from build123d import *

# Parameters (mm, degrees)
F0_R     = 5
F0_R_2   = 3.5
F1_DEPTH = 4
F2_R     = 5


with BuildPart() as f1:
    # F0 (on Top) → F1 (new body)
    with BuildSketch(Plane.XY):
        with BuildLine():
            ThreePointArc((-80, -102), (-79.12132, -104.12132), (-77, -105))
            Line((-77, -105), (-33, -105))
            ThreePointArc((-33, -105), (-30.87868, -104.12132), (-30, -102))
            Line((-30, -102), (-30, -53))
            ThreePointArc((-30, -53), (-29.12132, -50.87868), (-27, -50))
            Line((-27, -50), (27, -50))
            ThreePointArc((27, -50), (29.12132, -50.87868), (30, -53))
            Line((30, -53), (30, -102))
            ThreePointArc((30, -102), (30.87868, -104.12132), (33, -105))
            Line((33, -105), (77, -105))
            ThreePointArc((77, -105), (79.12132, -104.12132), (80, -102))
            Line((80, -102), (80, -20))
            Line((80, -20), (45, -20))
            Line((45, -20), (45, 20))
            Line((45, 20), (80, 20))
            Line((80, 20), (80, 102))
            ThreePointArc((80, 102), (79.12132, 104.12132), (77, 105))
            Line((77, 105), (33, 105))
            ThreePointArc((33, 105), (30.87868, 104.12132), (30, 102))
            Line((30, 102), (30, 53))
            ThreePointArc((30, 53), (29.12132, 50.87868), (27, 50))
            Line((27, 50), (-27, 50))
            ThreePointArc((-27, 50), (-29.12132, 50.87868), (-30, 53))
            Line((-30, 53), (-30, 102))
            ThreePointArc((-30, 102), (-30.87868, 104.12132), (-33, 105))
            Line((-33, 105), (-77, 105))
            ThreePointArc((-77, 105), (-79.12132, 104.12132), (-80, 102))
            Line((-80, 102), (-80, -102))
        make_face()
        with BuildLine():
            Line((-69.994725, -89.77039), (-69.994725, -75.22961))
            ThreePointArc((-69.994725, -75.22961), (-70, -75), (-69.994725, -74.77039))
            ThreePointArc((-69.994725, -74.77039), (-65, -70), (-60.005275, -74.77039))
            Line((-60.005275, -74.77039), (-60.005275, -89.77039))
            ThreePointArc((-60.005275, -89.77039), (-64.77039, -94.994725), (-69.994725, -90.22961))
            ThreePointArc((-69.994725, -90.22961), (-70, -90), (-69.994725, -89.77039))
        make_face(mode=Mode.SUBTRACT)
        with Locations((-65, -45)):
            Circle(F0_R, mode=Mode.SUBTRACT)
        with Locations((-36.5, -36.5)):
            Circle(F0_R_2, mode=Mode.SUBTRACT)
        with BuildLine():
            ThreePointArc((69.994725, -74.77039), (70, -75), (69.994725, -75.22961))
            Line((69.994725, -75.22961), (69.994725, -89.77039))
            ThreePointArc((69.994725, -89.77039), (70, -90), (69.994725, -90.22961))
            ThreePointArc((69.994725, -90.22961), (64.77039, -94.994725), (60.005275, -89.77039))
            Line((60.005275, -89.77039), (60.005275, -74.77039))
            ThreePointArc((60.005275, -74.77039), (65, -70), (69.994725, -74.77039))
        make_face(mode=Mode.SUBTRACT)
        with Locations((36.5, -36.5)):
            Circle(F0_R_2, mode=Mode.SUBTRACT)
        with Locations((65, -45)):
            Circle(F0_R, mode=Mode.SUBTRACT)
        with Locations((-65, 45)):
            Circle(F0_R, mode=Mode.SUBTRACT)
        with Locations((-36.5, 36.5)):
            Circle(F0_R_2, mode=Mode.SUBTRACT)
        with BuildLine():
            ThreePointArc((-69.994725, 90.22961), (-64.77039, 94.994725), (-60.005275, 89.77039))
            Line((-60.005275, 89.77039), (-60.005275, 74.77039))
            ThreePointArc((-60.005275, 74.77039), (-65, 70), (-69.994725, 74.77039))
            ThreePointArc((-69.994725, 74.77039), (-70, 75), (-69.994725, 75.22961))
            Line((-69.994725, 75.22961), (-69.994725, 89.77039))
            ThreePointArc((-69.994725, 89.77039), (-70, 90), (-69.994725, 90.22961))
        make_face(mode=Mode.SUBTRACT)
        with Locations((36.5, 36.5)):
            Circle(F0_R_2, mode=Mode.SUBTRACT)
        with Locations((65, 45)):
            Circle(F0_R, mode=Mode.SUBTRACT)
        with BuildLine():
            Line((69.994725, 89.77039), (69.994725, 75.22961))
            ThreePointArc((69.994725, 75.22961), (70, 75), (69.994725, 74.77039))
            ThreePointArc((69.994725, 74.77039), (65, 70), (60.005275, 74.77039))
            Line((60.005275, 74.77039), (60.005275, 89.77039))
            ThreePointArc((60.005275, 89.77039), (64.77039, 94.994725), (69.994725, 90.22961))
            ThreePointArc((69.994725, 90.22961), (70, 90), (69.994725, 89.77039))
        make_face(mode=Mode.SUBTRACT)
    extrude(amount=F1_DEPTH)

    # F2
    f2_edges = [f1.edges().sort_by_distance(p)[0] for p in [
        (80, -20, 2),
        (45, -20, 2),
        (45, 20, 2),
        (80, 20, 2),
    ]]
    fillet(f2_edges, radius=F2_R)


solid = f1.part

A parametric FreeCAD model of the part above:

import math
import FreeCAD as App
import Part
import Sketcher

V = App.Vector
Q = App.Units.Quantity


def edges_at(feature, points):
    """Names of the edges that pass closest to the given points."""
    edges = feature.Shape.Edges
    near = lambda p: min(range(len(edges)), key=lambda i: edges[i].distToShape(Part.Vertex(*p))[0])
    return sorted({f"Edge{near(p) + 1}" for p in points})

doc = App.newDocument("Part")
params = doc.addObject("Spreadsheet::Sheet", "Params")
for row, (alias, value) in enumerate([
    ("sketch1_diameter", "10 mm"),
    ("sketch1_diameter2", "7 mm"),
    ("sketch1_diameter3", "7 mm"),
    ("sketch1_diameter4", "10 mm"),
    ("sketch1_diameter5", "10 mm"),
    ("pad1_length", "4 mm"),
    ("fillet_radius", "5 mm"),
], start=1):
    params.set(f"A{row}", alias)
    params.set(f"B{row}", "=" + value)
    params.setAlias(f"B{row}", alias)

body = doc.addObject("PartDesign::Body", "Body")

sketch1 = doc.addObject("Sketcher::SketchObject", "Sketch")
body.addObject(sketch1)
sketch1.AttachmentSupport = (doc.XY_Plane, [""])
sketch1.MapMode = "FlatFace"
sketch1.addGeometry([
    Part.ArcOfCircle(Part.Circle(V(-76.999999, -101.999999, 0), V(0, 0, 1), 3.000001), math.radians(-179.999978), math.radians(-90.000022)),
    Part.LineSegment(V(-77, -105, 0), V(-33, -105, 0)),
    Part.ArcOfCircle(Part.Circle(V(-33.000001, -101.999999, 0), V(0, 0, 1), 3.000001), math.radians(-89.999978), math.radians(-0.000022)),
    Part.LineSegment(V(-30, -102, 0), V(-30, -53, 0)),
    Part.ArcOfCircle(Part.Circle(V(-26.999999, -53.000001, 0), V(0, 0, 1), 3.000001), math.radians(90.000022), math.radians(179.999978)),
    Part.LineSegment(V(-27, -50, 0), V(27, -50, 0)),
    Part.ArcOfCircle(Part.Circle(V(26.999999, -53.000001, 0), V(0, 0, 1), 3.000001), math.radians(0.000022), math.radians(89.999978)),
    Part.LineSegment(V(30, -53, 0), V(30, -102, 0)),
    Part.ArcOfCircle(Part.Circle(V(33.000001, -101.999999, 0), V(0, 0, 1), 3.000001), math.radians(-179.999978), math.radians(-90.000022)),
    Part.LineSegment(V(33, -105, 0), V(77, -105, 0)),
    Part.ArcOfCircle(Part.Circle(V(76.999999, -101.999999, 0), V(0, 0, 1), 3.000001), math.radians(-89.999978), math.radians(-0.000022)),
    Part.LineSegment(V(80, -102, 0), V(80, -20, 0)),
    Part.LineSegment(V(80, -20, 0), V(45, -20, 0)),
    Part.LineSegment(V(45, -20, 0), V(45, 20, 0)),
    Part.LineSegment(V(45, 20, 0), V(80, 20, 0)),
    Part.LineSegment(V(80, 20, 0), V(80, 102, 0)),
    Part.ArcOfCircle(Part.Circle(V(76.999999, 101.999999, 0), V(0, 0, 1), 3.000001), math.radians(0.000022), math.radians(89.999978)),
    Part.LineSegment(V(77, 105, 0), V(33, 105, 0)),
    Part.ArcOfCircle(Part.Circle(V(33.000001, 101.999999, 0), V(0, 0, 1), 3.000001), math.radians(90.000022), math.radians(179.999978)),
    Part.LineSegment(V(30, 102, 0), V(30, 53, 0)),
    Part.ArcOfCircle(Part.Circle(V(26.999999, 53.000001, 0), V(0, 0, 1), 3.000001), math.radians(-89.999978), math.radians(-0.000022)),
    Part.LineSegment(V(27, 50, 0), V(-27, 50, 0)),
    Part.ArcOfCircle(Part.Circle(V(-26.999999, 53.000001, 0), V(0, 0, 1), 3.000001), math.radians(-179.999978), math.radians(-90.000022)),
    Part.LineSegment(V(-30, 53, 0), V(-30, 102, 0)),
    Part.ArcOfCircle(Part.Circle(V(-33.000001, 101.999999, 0), V(0, 0, 1), 3.000001), math.radians(0.000022), math.radians(89.999978)),
    Part.LineSegment(V(-33, 105, 0), V(-77, 105, 0)),
    Part.ArcOfCircle(Part.Circle(V(-76.999999, 101.999999, 0), V(0, 0, 1), 3.000001), math.radians(90.000022), math.radians(179.999978)),
    Part.LineSegment(V(-80, 102, 0), V(-80, -102, 0)),
    Part.ArcOfCircle(Part.Circle(V(-65.000135, -90, 0), V(0, 0, 1), 4.999865), math.radians(177.367867), math.radians(182.632133)),
    Part.LineSegment(V(-69.994725, -89.77039, 0), V(-69.994725, -75.22961, 0)),
    Part.ArcOfCircle(Part.Circle(V(-65.000135, -75, 0), V(0, 0, 1), 4.999865), math.radians(177.367867), math.radians(182.632133)),
    Part.ArcOfCircle(Part.Circle(V(-65, -75, 0), V(0, 0, 1), 5), math.radians(2.632061), math.radians(177.367939)),
    Part.LineSegment(V(-60.005275, -74.77039, 0), V(-60.005275, -89.77039, 0)),
    Part.ArcOfCircle(Part.Circle(V(-65, -90, 0), V(0, 0, 1), 5), math.radians(-177.367937), math.radians(2.632063)),
    Part.Circle(V(-65, -45, 0), V(0, 0, 1), 5),
    Part.Circle(V(-36.5, -36.5, 0), V(0, 0, 1), 3.5),
    Part.ArcOfCircle(Part.Circle(V(65, -75, 0), V(0, 0, 1), 5), math.radians(2.632061), math.radians(177.367939)),
    Part.ArcOfCircle(Part.Circle(V(65.000135, -75, 0), V(0, 0, 1), 4.999865), math.radians(-2.632133), math.radians(2.632133)),
    Part.LineSegment(V(69.994725, -75.22961, 0), V(69.994725, -89.77039, 0)),
    Part.ArcOfCircle(Part.Circle(V(65.000135, -90, 0), V(0, 0, 1), 4.999865), math.radians(-2.632133), math.radians(2.632133)),
    Part.ArcOfCircle(Part.Circle(V(65, -90, 0), V(0, 0, 1), 5), math.radians(177.367937), math.radians(357.367937)),
    Part.LineSegment(V(60.005275, -89.77039, 0), V(60.005275, -74.77039, 0)),
    Part.Circle(V(36.5, -36.5, 0), V(0, 0, 1), 3.5),
    Part.Circle(V(65, -45, 0), V(0, 0, 1), 5),
    Part.Circle(V(-65, 45, 0), V(0, 0, 1), 5),
    Part.Circle(V(-36.5, 36.5, 0), V(0, 0, 1), 3.5),
    Part.ArcOfCircle(Part.Circle(V(-65.000135, 90, 0), V(0, 0, 1), 4.999865), math.radians(177.367867), math.radians(182.632133)),
    Part.ArcOfCircle(Part.Circle(V(-65, 90, 0), V(0, 0, 1), 5), math.radians(-2.632063), math.radians(177.367937)),
    Part.LineSegment(V(-60.005275, 89.77039, 0), V(-60.005275, 74.77039, 0)),
    Part.ArcOfCircle(Part.Circle(V(-65, 75, 0), V(0, 0, 1), 5), math.radians(-177.367939), math.radians(-2.632061)),
    Part.ArcOfCircle(Part.Circle(V(-65.000135, 75, 0), V(0, 0, 1), 4.999865), math.radians(177.367867), math.radians(182.632133)),
    Part.LineSegment(V(-69.994725, 75.22961, 0), V(-69.994725, 89.77039, 0)),
    Part.Circle(V(36.5, 36.5, 0), V(0, 0, 1), 3.5),
    Part.Circle(V(65, 45, 0), V(0, 0, 1), 5),
    Part.ArcOfCircle(Part.Circle(V(65.000135, 90, 0), V(0, 0, 1), 4.999865), math.radians(-2.632133), math.radians(2.632133)),
    Part.LineSegment(V(69.994725, 89.77039, 0), V(69.994725, 75.22961, 0)),
    Part.ArcOfCircle(Part.Circle(V(65.000135, 75, 0), V(0, 0, 1), 4.999865), math.radians(-2.632133), math.radians(2.632133)),
    Part.ArcOfCircle(Part.Circle(V(65, 75, 0), V(0, 0, 1), 5), math.radians(-177.367939), math.radians(-2.632061)),
    Part.LineSegment(V(60.005275, 74.77039, 0), V(60.005275, 89.77039, 0)),
    Part.ArcOfCircle(Part.Circle(V(65, 90, 0), V(0, 0, 1), 5), math.radians(2.632063), math.radians(182.632063)),
], False)
sketch1.addConstraint([
    Sketcher.Constraint("Coincident", 0, 2, 1, 1),
    Sketcher.Constraint("Coincident", 1, 2, 2, 1),
    Sketcher.Constraint("Coincident", 2, 2, 3, 1),
    Sketcher.Constraint("Coincident", 3, 2, 4, 2),
    Sketcher.Constraint("Coincident", 4, 1, 5, 1),
    Sketcher.Constraint("Coincident", 5, 2, 6, 2),
    Sketcher.Constraint("Coincident", 6, 1, 7, 1),
    Sketcher.Constraint("Coincident", 7, 2, 8, 1),
    Sketcher.Constraint("Coincident", 8, 2, 9, 1),
    Sketcher.Constraint("Coincident", 9, 2, 10, 1),
    Sketcher.Constraint("Coincident", 10, 2, 11, 1),
    Sketcher.Constraint("Coincident", 11, 2, 12, 1),
    Sketcher.Constraint("Coincident", 12, 2, 13, 1),
    Sketcher.Constraint("Coincident", 13, 2, 14, 1),
    Sketcher.Constraint("Coincident", 14, 2, 15, 1),
    Sketcher.Constraint("Coincident", 15, 2, 16, 1),
    Sketcher.Constraint("Coincident", 16, 2, 17, 1),
    Sketcher.Constraint("Coincident", 17, 2, 18, 1),
    Sketcher.Constraint("Coincident", 18, 2, 19, 1),
    Sketcher.Constraint("Coincident", 19, 2, 20, 2),
    Sketcher.Constraint("Coincident", 20, 1, 21, 1),
    Sketcher.Constraint("Coincident", 21, 2, 22, 2),
    Sketcher.Constraint("Coincident", 22, 1, 23, 1),
    Sketcher.Constraint("Coincident", 23, 2, 24, 1),
    Sketcher.Constraint("Coincident", 24, 2, 25, 1),
    Sketcher.Constraint("Coincident", 25, 2, 26, 1),
    Sketcher.Constraint("Coincident", 26, 2, 27, 1),
    Sketcher.Constraint("Coincident", 27, 2, 0, 1),
    Sketcher.Constraint("Coincident", 28, 1, 29, 1),
    Sketcher.Constraint("Coincident", 29, 2, 30, 2),
    Sketcher.Constraint("Coincident", 30, 1, 31, 2),
    Sketcher.Constraint("Coincident", 31, 1, 32, 1),
    Sketcher.Constraint("Coincident", 32, 2, 33, 2),
    Sketcher.Constraint("Coincident", 33, 1, 28, 2),
    Sketcher.Constraint("Coincident", 36, 1, 37, 2),
    Sketcher.Constraint("Coincident", 37, 1, 38, 1),
    Sketcher.Constraint("Coincident", 38, 2, 39, 2),
    Sketcher.Constraint("Coincident", 39, 1, 40, 2),
    Sketcher.Constraint("Coincident", 40, 1, 41, 1),
    Sketcher.Constraint("Coincident", 41, 2, 36, 2),
    Sketcher.Constraint("Coincident", 46, 1, 47, 2),
    Sketcher.Constraint("Coincident", 47, 1, 48, 1),
    Sketcher.Constraint("Coincident", 48, 2, 49, 2),
    Sketcher.Constraint("Coincident", 49, 1, 50, 2),
    Sketcher.Constraint("Coincident", 50, 1, 51, 1),
    Sketcher.Constraint("Coincident", 51, 2, 46, 2),
    Sketcher.Constraint("Coincident", 54, 1, 55, 1),
    Sketcher.Constraint("Coincident", 55, 2, 56, 2),
    Sketcher.Constraint("Coincident", 56, 1, 57, 2),
    Sketcher.Constraint("Coincident", 57, 1, 58, 1),
    Sketcher.Constraint("Coincident", 58, 2, 59, 2),
    Sketcher.Constraint("Coincident", 59, 1, 54, 2),
    Sketcher.Constraint("Horizontal", 1),
    Sketcher.Constraint("Vertical", 3),
    Sketcher.Constraint("Horizontal", 5),
    Sketcher.Constraint("Vertical", 7),
    Sketcher.Constraint("Horizontal", 9),
    Sketcher.Constraint("Vertical", 11),
    Sketcher.Constraint("Horizontal", 12),
    Sketcher.Constraint("Vertical", 13),
    Sketcher.Constraint("Horizontal", 14),
    Sketcher.Constraint("Vertical", 15),
    Sketcher.Constraint("Horizontal", 17),
    Sketcher.Constraint("Vertical", 19),
    Sketcher.Constraint("Horizontal", 21),
    Sketcher.Constraint("Vertical", 23),
    Sketcher.Constraint("Horizontal", 25),
    Sketcher.Constraint("Vertical", 27),
    Sketcher.Constraint("Vertical", 29),
    Sketcher.Constraint("Vertical", 32),
    Sketcher.Constraint("Vertical", 38),
    Sketcher.Constraint("Vertical", 41),
    Sketcher.Constraint("Vertical", 48),
    Sketcher.Constraint("Vertical", 51),
    Sketcher.Constraint("Vertical", 55),
    Sketcher.Constraint("Vertical", 58),
    Sketcher.Constraint("Diameter", 34, Q("10 mm")),
    Sketcher.Constraint("Diameter", 35, Q("7 mm")),
    Sketcher.Constraint("Diameter", 42, Q("7 mm")),
    Sketcher.Constraint("Diameter", 43, Q("10 mm")),
    Sketcher.Constraint("Diameter", 44, Q("10 mm")),
    Sketcher.Constraint("Diameter", 45, Q("7 mm")),
    Sketcher.Constraint("Diameter", 52, Q("7 mm")),
    Sketcher.Constraint("Diameter", 53, Q("10 mm")),
    Sketcher.Constraint("Radius", 0, Q("3.000001 mm")),
    Sketcher.Constraint("Radius", 2, Q("3.000001 mm")),
    Sketcher.Constraint("Radius", 4, Q("3.000001 mm")),
    Sketcher.Constraint("Radius", 6, Q("3.000001 mm")),
    Sketcher.Constraint("Radius", 8, Q("3.000001 mm")),
    Sketcher.Constraint("Radius", 10, Q("3.000001 mm")),
    Sketcher.Constraint("Radius", 16, Q("3.000001 mm")),
    Sketcher.Constraint("Radius", 18, Q("3.000001 mm")),
    Sketcher.Constraint("Radius", 20, Q("3.000001 mm")),
    Sketcher.Constraint("Radius", 22, Q("3.000001 mm")),
    Sketcher.Constraint("Radius", 24, Q("3.000001 mm")),
    Sketcher.Constraint("Radius", 26, Q("3.000001 mm")),
    Sketcher.Constraint("Radius", 31, Q("5 mm")),
    Sketcher.Constraint("Radius", 33, Q("5 mm")),
    Sketcher.Constraint("Radius", 36, Q("5 mm")),
    Sketcher.Constraint("Radius", 40, Q("5 mm")),
    Sketcher.Constraint("Radius", 47, Q("5 mm")),
    Sketcher.Constraint("Radius", 49, Q("5 mm")),
    Sketcher.Constraint("Radius", 57, Q("5 mm")),
    Sketcher.Constraint("Radius", 59, Q("5 mm")),
    Sketcher.Constraint("DistanceX", 1, 1, 1, 2, Q("44 mm")),
    Sketcher.Constraint("DistanceX", 5, 1, 5, 2, Q("54 mm")),
    Sketcher.Constraint("DistanceX", 9, 1, 9, 2, Q("44 mm")),
    Sketcher.Constraint("DistanceX", 12, 2, 12, 1, Q("35 mm")),
    Sketcher.Constraint("DistanceX", 14, 1, 14, 2, Q("35 mm")),
    Sketcher.Constraint("DistanceX", 17, 2, 17, 1, Q("44 mm")),
    Sketcher.Constraint("DistanceX", 21, 2, 21, 1, Q("54 mm")),
    Sketcher.Constraint("DistanceX", 25, 2, 25, 1, Q("44 mm")),
    Sketcher.Constraint("DistanceY", 3, 1, 3, 2, Q("49 mm")),
    Sketcher.Constraint("DistanceY", 7, 2, 7, 1, Q("49 mm")),
    Sketcher.Constraint("DistanceY", 11, 1, 11, 2, Q("82 mm")),
    Sketcher.Constraint("DistanceY", 13, 1, 13, 2, Q("40 mm")),
    Sketcher.Constraint("DistanceY", 15, 1, 15, 2, Q("82 mm")),
    Sketcher.Constraint("DistanceY", 19, 2, 19, 1, Q("49 mm")),
    Sketcher.Constraint("DistanceY", 23, 1, 23, 2, Q("49 mm")),
    Sketcher.Constraint("DistanceY", 27, 2, 27, 1, Q("204 mm")),
    Sketcher.Constraint("DistanceY", 32, 2, 32, 1, Q("15 mm")),
    Sketcher.Constraint("DistanceY", 41, 1, 41, 2, Q("15 mm")),
    Sketcher.Constraint("DistanceY", 48, 2, 48, 1, Q("15 mm")),
    Sketcher.Constraint("DistanceY", 58, 1, 58, 2, Q("15 mm")),
    Sketcher.Constraint("DistanceX", 0, 3, -1, 1, Q("76.999999 mm")),
    Sketcher.Constraint("DistanceY", 0, 3, -1, 1, Q("101.999999 mm")),
    Sketcher.Constraint("DistanceX", 2, 3, -1, 1, Q("33.000001 mm")),
    Sketcher.Constraint("DistanceY", 4, 3, -1, 1, Q("53.000001 mm")),
    Sketcher.Constraint("DistanceX", -1, 1, 6, 3, Q("26.999999 mm")),
    Sketcher.Constraint("DistanceY", 8, 3, -1, 1, Q("101.999999 mm")),
    Sketcher.Constraint("DistanceX", -1, 1, 10, 3, Q("76.999999 mm")),
    Sketcher.Constraint("DistanceY", -1, 1, 16, 3, Q("101.999999 mm")),
    Sketcher.Constraint("DistanceX", -1, 1, 18, 3, Q("33.000001 mm")),
    Sketcher.Constraint("DistanceY", -1, 1, 20, 3, Q("53.000001 mm")),
    Sketcher.Constraint("DistanceX", 22, 3, -1, 1, Q("26.999999 mm")),
    Sketcher.Constraint("DistanceY", -1, 1, 24, 3, Q("101.999999 mm")),
    Sketcher.Constraint("DistanceY", 28, 3, -1, 1, Q("90 mm")),
    Sketcher.Constraint("DistanceY", 30, 3, -1, 1, Q("75 mm")),
    Sketcher.Constraint("DistanceX", 31, 3, -1, 1, Q("65 mm")),
    Sketcher.Constraint("DistanceY", 31, 3, -1, 1, Q("75 mm")),
    Sketcher.Constraint("DistanceX", 33, 3, -1, 1, Q("65 mm")),
    Sketcher.Constraint("DistanceX", 34, 3, -1, 1, Q("65 mm")),
    Sketcher.Constraint("DistanceY", 34, 3, -1, 1, Q("45 mm")),
    Sketcher.Constraint("DistanceX", -1, 1, 36, 3, Q("65 mm")),
    Sketcher.Constraint("DistanceY", 36, 3, -1, 1, Q("75 mm")),
    Sketcher.Constraint("DistanceY", 37, 3, -1, 1, Q("75 mm")),
    Sketcher.Constraint("DistanceY", 39, 3, -1, 1, Q("90 mm")),
    Sketcher.Constraint("DistanceX", -1, 1, 40, 3, Q("65 mm")),
    Sketcher.Constraint("DistanceX", -1, 1, 43, 3, Q("65 mm")),
    Sketcher.Constraint("DistanceY", 43, 3, -1, 1, Q("45 mm")),
    Sketcher.Constraint("DistanceX", 44, 3, -1, 1, Q("65 mm")),
    Sketcher.Constraint("DistanceY", -1, 1, 44, 3, Q("45 mm")),
    Sketcher.Constraint("DistanceY", -1, 1, 46, 3, Q("90 mm")),
    Sketcher.Constraint("DistanceX", 47, 3, -1, 1, Q("65 mm")),
    Sketcher.Constraint("DistanceY", -1, 1, 47, 3, Q("90 mm")),
    Sketcher.Constraint("DistanceX", 49, 3, -1, 1, Q("65 mm")),
    Sketcher.Constraint("DistanceY", -1, 1, 50, 3, Q("75 mm")),
    Sketcher.Constraint("DistanceX", -1, 1, 53, 3, Q("65 mm")),
    Sketcher.Constraint("DistanceY", -1, 1, 53, 3, Q("45 mm")),
    Sketcher.Constraint("DistanceY", -1, 1, 54, 3, Q("90 mm")),
    Sketcher.Constraint("DistanceY", -1, 1, 56, 3, Q("75 mm")),
    Sketcher.Constraint("DistanceX", -1, 1, 57, 3, Q("65 mm")),
    Sketcher.Constraint("DistanceY", -1, 1, 57, 3, Q("75 mm")),
    Sketcher.Constraint("DistanceX", -1, 1, 59, 3, Q("65 mm")),
    Sketcher.Constraint("DistanceX", 0, 2, -1, 1, Q("77 mm")),
    Sketcher.Constraint("DistanceY", 2, 2, -1, 1, Q("102 mm")),
    Sketcher.Constraint("DistanceX", 4, 1, -1, 1, Q("27 mm")),
    Sketcher.Constraint("DistanceY", 6, 1, -1, 1, Q("53 mm")),
    Sketcher.Constraint("DistanceX", -1, 1, 8, 2, Q("33 mm")),
    Sketcher.Constraint("DistanceY", 10, 2, -1, 1, Q("102 mm")),
    Sketcher.Constraint("DistanceX", -1, 1, 16, 2, Q("77 mm")),
    Sketcher.Constraint("DistanceY", -1, 1, 18, 2, Q("102 mm")),
    Sketcher.Constraint("DistanceX", -1, 1, 20, 1, Q("27 mm")),
    Sketcher.Constraint("DistanceY", -1, 1, 22, 1, Q("53 mm")),
    Sketcher.Constraint("DistanceX", 24, 2, -1, 1, Q("33 mm")),
    Sketcher.Constraint("DistanceY", -1, 1, 26, 2, Q("102 mm")),
    Sketcher.Constraint("DistanceX", 35, 3, -1, 1, Q("36.5 mm")),
    Sketcher.Constraint("DistanceY", 35, 3, -1, 1, Q("36.5 mm")),
    Sketcher.Constraint("DistanceX", -1, 1, 42, 3, Q("36.5 mm")),
    Sketcher.Constraint("DistanceY", 42, 3, -1, 1, Q("36.5 mm")),
    Sketcher.Constraint("DistanceX", 45, 3, -1, 1, Q("36.5 mm")),
    Sketcher.Constraint("DistanceY", -1, 1, 45, 3, Q("36.5 mm")),
    Sketcher.Constraint("DistanceX", -1, 1, 52, 3, Q("36.5 mm")),
    Sketcher.Constraint("DistanceY", -1, 1, 52, 3, Q("36.5 mm")),
    Sketcher.Constraint("Radius", 28, Q("4.999865 mm")),
    Sketcher.Constraint("Radius", 30, Q("4.999865 mm")),
    Sketcher.Constraint("Radius", 37, Q("4.999865 mm")),
    Sketcher.Constraint("Radius", 39, Q("4.999865 mm")),
    Sketcher.Constraint("Radius", 46, Q("4.999865 mm")),
    Sketcher.Constraint("Radius", 50, Q("4.999865 mm")),
    Sketcher.Constraint("Radius", 54, Q("4.999865 mm")),
    Sketcher.Constraint("Radius", 56, Q("4.999865 mm")),
    Sketcher.Constraint("DistanceY", 29, 1, 29, 2, Q("14.54078 mm")),
    Sketcher.Constraint("DistanceY", 38, 2, 38, 1, Q("14.54078 mm")),
    Sketcher.Constraint("DistanceY", 51, 1, 51, 2, Q("14.54078 mm")),
    Sketcher.Constraint("DistanceY", 55, 2, 55, 1, Q("14.54078 mm")),
    Sketcher.Constraint("DistanceY", 30, 1, -1, 1, Q("74.77039 mm")),
    Sketcher.Constraint("DistanceY", 31, 1, -1, 1, Q("74.77039 mm")),
    Sketcher.Constraint("DistanceY", 33, 1, -1, 1, Q("90.22961 mm")),
    Sketcher.Constraint("DistanceY", 36, 1, -1, 1, Q("74.77039 mm")),
    Sketcher.Constraint("DistanceY", 39, 1, -1, 1, Q("90.22961 mm")),
    Sketcher.Constraint("DistanceY", 40, 1, -1, 1, Q("89.77039 mm")),
    Sketcher.Constraint("DistanceY", -1, 1, 46, 1, Q("90.22961 mm")),
    Sketcher.Constraint("DistanceY", -1, 1, 47, 1, Q("89.77039 mm")),
    Sketcher.Constraint("DistanceY", -1, 1, 49, 1, Q("74.77039 mm")),
    Sketcher.Constraint("DistanceY", -1, 1, 56, 1, Q("74.77039 mm")),
    Sketcher.Constraint("DistanceY", -1, 1, 57, 1, Q("74.77039 mm")),
    Sketcher.Constraint("DistanceY", -1, 1, 59, 1, Q("90.22961 mm")),
])
sketch1.setExpression("Constraints[76]", "Params.sketch1_diameter")
sketch1.setExpression("Constraints[77]", "Params.sketch1_diameter2")
sketch1.setExpression("Constraints[78]", "Params.sketch1_diameter3")
sketch1.setExpression("Constraints[79]", "Params.sketch1_diameter4")
sketch1.setExpression("Constraints[80]", "Params.sketch1_diameter5")
pad1 = doc.addObject("PartDesign::Pad", "Pad")
body.addObject(pad1)
pad1.Profile = sketch1
pad1.setExpression("Length", "Params.pad1_length")
doc.recompute()

fillet = doc.addObject("PartDesign::Fillet", "Fillet")
body.addObject(fillet)
fillet.Base = (pad1, edges_at(pad1, [
    (80, -20, 2),
    (45, -20, 2),
    (45, 20, 2),
    (80, 20, 2),
]))
fillet.setExpression("Radius", "Params.fillet_radius")

doc.recompute()
